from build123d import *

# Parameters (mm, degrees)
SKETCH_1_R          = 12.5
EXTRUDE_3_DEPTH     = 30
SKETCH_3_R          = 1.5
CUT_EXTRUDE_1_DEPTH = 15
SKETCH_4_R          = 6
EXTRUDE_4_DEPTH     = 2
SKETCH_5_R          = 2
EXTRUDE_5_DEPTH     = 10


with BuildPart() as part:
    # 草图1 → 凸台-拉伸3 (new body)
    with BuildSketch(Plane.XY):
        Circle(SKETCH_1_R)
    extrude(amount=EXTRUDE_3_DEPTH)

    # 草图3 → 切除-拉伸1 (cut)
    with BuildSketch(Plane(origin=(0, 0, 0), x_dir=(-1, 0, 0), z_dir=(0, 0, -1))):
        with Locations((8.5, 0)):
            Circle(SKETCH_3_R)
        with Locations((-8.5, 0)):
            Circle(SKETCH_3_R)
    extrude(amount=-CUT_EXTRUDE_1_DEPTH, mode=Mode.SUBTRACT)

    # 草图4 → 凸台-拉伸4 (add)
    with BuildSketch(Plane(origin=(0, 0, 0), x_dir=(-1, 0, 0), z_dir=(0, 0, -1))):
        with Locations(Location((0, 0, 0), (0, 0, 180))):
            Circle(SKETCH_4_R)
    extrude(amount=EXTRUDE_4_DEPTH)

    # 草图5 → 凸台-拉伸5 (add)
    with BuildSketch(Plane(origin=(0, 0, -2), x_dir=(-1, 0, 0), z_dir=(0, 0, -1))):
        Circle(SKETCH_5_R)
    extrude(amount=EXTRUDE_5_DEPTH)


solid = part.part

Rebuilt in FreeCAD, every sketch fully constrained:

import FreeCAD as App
import Part
import Sketcher

V = App.Vector
Q = App.Units.Quantity

doc = App.newDocument("Part")
body = doc.addObject("PartDesign::Body", "Body")

# Sketch on XY plane
sketch1 = doc.addObject("Sketcher::SketchObject", "Sketch")
body.addObject(sketch1)
sketch1.AttachmentSupport = (doc.XY_Plane, [""])
sketch1.MapMode = "FlatFace"
sketch1.addGeometry(Part.Circle(V(0, 0, 0), V(0, 0, 1), 12.5), False)
sketch1.addConstraint(Sketcher.Constraint("Coincident", 0, 3, -1, 1))
sketch1.addConstraint(Sketcher.Constraint("Diameter", 0, Q("25 mm")))
pad1 = doc.addObject("PartDesign::Pad", "Pad")
body.addObject(pad1)
pad1.Profile = sketch1
pad1.Length = 30

# Sketch on XY plane
sketch2 = doc.addObject("Sketcher::SketchObject", "Sketch001")
body.addObject(sketch2)
sketch2.AttachmentSupport = (doc.XY_Plane, [""])
sketch2.MapMode = "FlatFace"
sketch2.addGeometry(Part.Circle(V(-8.5, 0, 0), V(0, 0, 1), 1.5), False)
sketch2.addGeometry(Part.Circle(V(8.5, 0, 0), V(0, 0, 1), 1.5), False)
sketch2.addConstraint(Sketcher.Constraint("Equal", 0, 1))
sketch2.addConstraint(Sketcher.Constraint("Symmetric", 0, 3, 1, 3, -1, 1))
sketch2.addConstraint(Sketcher.Constraint("PointOnObject", 0, 3, -1))
sketch2.addConstraint(Sketcher.Constraint("Diameter", 0, Q("3 mm")))
sketch2.addConstraint(Sketcher.Constraint("DistanceX", 0, 3, 1, 3, Q("17 mm")))
pocket1 = doc.addObject("PartDesign::Pocket", "Pocket")
body.addObject(pocket1)
pocket1.Profile = sketch2
pocket1.Length = 15
pocket1.Reversed = True

# Sketch on XY plane
sketch3 = doc.addObject("Sketcher::SketchObject", "Sketch002")
body.addObject(sketch3)
sketch3.AttachmentSupport = (doc.XY_Plane, [""])
sketch3.MapMode = "FlatFace"
sketch3.addGeometry(Part.Circle(V(0, 0, 0), V(0, 0, 1), 6), False)
sketch3.addConstraint(Sketcher.Constraint("Coincident", 0, 3, -1, 1))
sketch3.addConstraint(Sketcher.Constraint("Diameter", 0, Q("12 mm")))
pad2 = doc.addObject("PartDesign::Pad", "Pad001")
body.addObject(pad2)
pad2.Profile = sketch3
pad2.Length = 2
pad2.Reversed = True

# Sketch on XY plane
sketch4 = doc.addObject("Sketcher::SketchObject", "Sketch003")
body.addObject(sketch4)
sketch4.AttachmentSupport = (doc.XY_Plane, [""])
sketch4.MapMode = "FlatFace"
sketch4.AttachmentOffset = App.Placement(V(0, 0, -2), App.Rotation())
sketch4.addGeometry(Part.Circle(V(0, 0, 0), V(0, 0, 1), 2), False)
sketch4.addConstraint(Sketcher.Constraint("Coincident", 0, 3, -1, 1))
sketch4.addConstraint(Sketcher.Constraint("Diameter", 0, Q("4 mm")))
pad3 = doc.addObject("PartDesign::Pad", "Pad002")
body.addObject(pad3)
pad3.Profile = sketch4
pad3.Length = 10
pad3.Reversed = True

doc.recompute()
